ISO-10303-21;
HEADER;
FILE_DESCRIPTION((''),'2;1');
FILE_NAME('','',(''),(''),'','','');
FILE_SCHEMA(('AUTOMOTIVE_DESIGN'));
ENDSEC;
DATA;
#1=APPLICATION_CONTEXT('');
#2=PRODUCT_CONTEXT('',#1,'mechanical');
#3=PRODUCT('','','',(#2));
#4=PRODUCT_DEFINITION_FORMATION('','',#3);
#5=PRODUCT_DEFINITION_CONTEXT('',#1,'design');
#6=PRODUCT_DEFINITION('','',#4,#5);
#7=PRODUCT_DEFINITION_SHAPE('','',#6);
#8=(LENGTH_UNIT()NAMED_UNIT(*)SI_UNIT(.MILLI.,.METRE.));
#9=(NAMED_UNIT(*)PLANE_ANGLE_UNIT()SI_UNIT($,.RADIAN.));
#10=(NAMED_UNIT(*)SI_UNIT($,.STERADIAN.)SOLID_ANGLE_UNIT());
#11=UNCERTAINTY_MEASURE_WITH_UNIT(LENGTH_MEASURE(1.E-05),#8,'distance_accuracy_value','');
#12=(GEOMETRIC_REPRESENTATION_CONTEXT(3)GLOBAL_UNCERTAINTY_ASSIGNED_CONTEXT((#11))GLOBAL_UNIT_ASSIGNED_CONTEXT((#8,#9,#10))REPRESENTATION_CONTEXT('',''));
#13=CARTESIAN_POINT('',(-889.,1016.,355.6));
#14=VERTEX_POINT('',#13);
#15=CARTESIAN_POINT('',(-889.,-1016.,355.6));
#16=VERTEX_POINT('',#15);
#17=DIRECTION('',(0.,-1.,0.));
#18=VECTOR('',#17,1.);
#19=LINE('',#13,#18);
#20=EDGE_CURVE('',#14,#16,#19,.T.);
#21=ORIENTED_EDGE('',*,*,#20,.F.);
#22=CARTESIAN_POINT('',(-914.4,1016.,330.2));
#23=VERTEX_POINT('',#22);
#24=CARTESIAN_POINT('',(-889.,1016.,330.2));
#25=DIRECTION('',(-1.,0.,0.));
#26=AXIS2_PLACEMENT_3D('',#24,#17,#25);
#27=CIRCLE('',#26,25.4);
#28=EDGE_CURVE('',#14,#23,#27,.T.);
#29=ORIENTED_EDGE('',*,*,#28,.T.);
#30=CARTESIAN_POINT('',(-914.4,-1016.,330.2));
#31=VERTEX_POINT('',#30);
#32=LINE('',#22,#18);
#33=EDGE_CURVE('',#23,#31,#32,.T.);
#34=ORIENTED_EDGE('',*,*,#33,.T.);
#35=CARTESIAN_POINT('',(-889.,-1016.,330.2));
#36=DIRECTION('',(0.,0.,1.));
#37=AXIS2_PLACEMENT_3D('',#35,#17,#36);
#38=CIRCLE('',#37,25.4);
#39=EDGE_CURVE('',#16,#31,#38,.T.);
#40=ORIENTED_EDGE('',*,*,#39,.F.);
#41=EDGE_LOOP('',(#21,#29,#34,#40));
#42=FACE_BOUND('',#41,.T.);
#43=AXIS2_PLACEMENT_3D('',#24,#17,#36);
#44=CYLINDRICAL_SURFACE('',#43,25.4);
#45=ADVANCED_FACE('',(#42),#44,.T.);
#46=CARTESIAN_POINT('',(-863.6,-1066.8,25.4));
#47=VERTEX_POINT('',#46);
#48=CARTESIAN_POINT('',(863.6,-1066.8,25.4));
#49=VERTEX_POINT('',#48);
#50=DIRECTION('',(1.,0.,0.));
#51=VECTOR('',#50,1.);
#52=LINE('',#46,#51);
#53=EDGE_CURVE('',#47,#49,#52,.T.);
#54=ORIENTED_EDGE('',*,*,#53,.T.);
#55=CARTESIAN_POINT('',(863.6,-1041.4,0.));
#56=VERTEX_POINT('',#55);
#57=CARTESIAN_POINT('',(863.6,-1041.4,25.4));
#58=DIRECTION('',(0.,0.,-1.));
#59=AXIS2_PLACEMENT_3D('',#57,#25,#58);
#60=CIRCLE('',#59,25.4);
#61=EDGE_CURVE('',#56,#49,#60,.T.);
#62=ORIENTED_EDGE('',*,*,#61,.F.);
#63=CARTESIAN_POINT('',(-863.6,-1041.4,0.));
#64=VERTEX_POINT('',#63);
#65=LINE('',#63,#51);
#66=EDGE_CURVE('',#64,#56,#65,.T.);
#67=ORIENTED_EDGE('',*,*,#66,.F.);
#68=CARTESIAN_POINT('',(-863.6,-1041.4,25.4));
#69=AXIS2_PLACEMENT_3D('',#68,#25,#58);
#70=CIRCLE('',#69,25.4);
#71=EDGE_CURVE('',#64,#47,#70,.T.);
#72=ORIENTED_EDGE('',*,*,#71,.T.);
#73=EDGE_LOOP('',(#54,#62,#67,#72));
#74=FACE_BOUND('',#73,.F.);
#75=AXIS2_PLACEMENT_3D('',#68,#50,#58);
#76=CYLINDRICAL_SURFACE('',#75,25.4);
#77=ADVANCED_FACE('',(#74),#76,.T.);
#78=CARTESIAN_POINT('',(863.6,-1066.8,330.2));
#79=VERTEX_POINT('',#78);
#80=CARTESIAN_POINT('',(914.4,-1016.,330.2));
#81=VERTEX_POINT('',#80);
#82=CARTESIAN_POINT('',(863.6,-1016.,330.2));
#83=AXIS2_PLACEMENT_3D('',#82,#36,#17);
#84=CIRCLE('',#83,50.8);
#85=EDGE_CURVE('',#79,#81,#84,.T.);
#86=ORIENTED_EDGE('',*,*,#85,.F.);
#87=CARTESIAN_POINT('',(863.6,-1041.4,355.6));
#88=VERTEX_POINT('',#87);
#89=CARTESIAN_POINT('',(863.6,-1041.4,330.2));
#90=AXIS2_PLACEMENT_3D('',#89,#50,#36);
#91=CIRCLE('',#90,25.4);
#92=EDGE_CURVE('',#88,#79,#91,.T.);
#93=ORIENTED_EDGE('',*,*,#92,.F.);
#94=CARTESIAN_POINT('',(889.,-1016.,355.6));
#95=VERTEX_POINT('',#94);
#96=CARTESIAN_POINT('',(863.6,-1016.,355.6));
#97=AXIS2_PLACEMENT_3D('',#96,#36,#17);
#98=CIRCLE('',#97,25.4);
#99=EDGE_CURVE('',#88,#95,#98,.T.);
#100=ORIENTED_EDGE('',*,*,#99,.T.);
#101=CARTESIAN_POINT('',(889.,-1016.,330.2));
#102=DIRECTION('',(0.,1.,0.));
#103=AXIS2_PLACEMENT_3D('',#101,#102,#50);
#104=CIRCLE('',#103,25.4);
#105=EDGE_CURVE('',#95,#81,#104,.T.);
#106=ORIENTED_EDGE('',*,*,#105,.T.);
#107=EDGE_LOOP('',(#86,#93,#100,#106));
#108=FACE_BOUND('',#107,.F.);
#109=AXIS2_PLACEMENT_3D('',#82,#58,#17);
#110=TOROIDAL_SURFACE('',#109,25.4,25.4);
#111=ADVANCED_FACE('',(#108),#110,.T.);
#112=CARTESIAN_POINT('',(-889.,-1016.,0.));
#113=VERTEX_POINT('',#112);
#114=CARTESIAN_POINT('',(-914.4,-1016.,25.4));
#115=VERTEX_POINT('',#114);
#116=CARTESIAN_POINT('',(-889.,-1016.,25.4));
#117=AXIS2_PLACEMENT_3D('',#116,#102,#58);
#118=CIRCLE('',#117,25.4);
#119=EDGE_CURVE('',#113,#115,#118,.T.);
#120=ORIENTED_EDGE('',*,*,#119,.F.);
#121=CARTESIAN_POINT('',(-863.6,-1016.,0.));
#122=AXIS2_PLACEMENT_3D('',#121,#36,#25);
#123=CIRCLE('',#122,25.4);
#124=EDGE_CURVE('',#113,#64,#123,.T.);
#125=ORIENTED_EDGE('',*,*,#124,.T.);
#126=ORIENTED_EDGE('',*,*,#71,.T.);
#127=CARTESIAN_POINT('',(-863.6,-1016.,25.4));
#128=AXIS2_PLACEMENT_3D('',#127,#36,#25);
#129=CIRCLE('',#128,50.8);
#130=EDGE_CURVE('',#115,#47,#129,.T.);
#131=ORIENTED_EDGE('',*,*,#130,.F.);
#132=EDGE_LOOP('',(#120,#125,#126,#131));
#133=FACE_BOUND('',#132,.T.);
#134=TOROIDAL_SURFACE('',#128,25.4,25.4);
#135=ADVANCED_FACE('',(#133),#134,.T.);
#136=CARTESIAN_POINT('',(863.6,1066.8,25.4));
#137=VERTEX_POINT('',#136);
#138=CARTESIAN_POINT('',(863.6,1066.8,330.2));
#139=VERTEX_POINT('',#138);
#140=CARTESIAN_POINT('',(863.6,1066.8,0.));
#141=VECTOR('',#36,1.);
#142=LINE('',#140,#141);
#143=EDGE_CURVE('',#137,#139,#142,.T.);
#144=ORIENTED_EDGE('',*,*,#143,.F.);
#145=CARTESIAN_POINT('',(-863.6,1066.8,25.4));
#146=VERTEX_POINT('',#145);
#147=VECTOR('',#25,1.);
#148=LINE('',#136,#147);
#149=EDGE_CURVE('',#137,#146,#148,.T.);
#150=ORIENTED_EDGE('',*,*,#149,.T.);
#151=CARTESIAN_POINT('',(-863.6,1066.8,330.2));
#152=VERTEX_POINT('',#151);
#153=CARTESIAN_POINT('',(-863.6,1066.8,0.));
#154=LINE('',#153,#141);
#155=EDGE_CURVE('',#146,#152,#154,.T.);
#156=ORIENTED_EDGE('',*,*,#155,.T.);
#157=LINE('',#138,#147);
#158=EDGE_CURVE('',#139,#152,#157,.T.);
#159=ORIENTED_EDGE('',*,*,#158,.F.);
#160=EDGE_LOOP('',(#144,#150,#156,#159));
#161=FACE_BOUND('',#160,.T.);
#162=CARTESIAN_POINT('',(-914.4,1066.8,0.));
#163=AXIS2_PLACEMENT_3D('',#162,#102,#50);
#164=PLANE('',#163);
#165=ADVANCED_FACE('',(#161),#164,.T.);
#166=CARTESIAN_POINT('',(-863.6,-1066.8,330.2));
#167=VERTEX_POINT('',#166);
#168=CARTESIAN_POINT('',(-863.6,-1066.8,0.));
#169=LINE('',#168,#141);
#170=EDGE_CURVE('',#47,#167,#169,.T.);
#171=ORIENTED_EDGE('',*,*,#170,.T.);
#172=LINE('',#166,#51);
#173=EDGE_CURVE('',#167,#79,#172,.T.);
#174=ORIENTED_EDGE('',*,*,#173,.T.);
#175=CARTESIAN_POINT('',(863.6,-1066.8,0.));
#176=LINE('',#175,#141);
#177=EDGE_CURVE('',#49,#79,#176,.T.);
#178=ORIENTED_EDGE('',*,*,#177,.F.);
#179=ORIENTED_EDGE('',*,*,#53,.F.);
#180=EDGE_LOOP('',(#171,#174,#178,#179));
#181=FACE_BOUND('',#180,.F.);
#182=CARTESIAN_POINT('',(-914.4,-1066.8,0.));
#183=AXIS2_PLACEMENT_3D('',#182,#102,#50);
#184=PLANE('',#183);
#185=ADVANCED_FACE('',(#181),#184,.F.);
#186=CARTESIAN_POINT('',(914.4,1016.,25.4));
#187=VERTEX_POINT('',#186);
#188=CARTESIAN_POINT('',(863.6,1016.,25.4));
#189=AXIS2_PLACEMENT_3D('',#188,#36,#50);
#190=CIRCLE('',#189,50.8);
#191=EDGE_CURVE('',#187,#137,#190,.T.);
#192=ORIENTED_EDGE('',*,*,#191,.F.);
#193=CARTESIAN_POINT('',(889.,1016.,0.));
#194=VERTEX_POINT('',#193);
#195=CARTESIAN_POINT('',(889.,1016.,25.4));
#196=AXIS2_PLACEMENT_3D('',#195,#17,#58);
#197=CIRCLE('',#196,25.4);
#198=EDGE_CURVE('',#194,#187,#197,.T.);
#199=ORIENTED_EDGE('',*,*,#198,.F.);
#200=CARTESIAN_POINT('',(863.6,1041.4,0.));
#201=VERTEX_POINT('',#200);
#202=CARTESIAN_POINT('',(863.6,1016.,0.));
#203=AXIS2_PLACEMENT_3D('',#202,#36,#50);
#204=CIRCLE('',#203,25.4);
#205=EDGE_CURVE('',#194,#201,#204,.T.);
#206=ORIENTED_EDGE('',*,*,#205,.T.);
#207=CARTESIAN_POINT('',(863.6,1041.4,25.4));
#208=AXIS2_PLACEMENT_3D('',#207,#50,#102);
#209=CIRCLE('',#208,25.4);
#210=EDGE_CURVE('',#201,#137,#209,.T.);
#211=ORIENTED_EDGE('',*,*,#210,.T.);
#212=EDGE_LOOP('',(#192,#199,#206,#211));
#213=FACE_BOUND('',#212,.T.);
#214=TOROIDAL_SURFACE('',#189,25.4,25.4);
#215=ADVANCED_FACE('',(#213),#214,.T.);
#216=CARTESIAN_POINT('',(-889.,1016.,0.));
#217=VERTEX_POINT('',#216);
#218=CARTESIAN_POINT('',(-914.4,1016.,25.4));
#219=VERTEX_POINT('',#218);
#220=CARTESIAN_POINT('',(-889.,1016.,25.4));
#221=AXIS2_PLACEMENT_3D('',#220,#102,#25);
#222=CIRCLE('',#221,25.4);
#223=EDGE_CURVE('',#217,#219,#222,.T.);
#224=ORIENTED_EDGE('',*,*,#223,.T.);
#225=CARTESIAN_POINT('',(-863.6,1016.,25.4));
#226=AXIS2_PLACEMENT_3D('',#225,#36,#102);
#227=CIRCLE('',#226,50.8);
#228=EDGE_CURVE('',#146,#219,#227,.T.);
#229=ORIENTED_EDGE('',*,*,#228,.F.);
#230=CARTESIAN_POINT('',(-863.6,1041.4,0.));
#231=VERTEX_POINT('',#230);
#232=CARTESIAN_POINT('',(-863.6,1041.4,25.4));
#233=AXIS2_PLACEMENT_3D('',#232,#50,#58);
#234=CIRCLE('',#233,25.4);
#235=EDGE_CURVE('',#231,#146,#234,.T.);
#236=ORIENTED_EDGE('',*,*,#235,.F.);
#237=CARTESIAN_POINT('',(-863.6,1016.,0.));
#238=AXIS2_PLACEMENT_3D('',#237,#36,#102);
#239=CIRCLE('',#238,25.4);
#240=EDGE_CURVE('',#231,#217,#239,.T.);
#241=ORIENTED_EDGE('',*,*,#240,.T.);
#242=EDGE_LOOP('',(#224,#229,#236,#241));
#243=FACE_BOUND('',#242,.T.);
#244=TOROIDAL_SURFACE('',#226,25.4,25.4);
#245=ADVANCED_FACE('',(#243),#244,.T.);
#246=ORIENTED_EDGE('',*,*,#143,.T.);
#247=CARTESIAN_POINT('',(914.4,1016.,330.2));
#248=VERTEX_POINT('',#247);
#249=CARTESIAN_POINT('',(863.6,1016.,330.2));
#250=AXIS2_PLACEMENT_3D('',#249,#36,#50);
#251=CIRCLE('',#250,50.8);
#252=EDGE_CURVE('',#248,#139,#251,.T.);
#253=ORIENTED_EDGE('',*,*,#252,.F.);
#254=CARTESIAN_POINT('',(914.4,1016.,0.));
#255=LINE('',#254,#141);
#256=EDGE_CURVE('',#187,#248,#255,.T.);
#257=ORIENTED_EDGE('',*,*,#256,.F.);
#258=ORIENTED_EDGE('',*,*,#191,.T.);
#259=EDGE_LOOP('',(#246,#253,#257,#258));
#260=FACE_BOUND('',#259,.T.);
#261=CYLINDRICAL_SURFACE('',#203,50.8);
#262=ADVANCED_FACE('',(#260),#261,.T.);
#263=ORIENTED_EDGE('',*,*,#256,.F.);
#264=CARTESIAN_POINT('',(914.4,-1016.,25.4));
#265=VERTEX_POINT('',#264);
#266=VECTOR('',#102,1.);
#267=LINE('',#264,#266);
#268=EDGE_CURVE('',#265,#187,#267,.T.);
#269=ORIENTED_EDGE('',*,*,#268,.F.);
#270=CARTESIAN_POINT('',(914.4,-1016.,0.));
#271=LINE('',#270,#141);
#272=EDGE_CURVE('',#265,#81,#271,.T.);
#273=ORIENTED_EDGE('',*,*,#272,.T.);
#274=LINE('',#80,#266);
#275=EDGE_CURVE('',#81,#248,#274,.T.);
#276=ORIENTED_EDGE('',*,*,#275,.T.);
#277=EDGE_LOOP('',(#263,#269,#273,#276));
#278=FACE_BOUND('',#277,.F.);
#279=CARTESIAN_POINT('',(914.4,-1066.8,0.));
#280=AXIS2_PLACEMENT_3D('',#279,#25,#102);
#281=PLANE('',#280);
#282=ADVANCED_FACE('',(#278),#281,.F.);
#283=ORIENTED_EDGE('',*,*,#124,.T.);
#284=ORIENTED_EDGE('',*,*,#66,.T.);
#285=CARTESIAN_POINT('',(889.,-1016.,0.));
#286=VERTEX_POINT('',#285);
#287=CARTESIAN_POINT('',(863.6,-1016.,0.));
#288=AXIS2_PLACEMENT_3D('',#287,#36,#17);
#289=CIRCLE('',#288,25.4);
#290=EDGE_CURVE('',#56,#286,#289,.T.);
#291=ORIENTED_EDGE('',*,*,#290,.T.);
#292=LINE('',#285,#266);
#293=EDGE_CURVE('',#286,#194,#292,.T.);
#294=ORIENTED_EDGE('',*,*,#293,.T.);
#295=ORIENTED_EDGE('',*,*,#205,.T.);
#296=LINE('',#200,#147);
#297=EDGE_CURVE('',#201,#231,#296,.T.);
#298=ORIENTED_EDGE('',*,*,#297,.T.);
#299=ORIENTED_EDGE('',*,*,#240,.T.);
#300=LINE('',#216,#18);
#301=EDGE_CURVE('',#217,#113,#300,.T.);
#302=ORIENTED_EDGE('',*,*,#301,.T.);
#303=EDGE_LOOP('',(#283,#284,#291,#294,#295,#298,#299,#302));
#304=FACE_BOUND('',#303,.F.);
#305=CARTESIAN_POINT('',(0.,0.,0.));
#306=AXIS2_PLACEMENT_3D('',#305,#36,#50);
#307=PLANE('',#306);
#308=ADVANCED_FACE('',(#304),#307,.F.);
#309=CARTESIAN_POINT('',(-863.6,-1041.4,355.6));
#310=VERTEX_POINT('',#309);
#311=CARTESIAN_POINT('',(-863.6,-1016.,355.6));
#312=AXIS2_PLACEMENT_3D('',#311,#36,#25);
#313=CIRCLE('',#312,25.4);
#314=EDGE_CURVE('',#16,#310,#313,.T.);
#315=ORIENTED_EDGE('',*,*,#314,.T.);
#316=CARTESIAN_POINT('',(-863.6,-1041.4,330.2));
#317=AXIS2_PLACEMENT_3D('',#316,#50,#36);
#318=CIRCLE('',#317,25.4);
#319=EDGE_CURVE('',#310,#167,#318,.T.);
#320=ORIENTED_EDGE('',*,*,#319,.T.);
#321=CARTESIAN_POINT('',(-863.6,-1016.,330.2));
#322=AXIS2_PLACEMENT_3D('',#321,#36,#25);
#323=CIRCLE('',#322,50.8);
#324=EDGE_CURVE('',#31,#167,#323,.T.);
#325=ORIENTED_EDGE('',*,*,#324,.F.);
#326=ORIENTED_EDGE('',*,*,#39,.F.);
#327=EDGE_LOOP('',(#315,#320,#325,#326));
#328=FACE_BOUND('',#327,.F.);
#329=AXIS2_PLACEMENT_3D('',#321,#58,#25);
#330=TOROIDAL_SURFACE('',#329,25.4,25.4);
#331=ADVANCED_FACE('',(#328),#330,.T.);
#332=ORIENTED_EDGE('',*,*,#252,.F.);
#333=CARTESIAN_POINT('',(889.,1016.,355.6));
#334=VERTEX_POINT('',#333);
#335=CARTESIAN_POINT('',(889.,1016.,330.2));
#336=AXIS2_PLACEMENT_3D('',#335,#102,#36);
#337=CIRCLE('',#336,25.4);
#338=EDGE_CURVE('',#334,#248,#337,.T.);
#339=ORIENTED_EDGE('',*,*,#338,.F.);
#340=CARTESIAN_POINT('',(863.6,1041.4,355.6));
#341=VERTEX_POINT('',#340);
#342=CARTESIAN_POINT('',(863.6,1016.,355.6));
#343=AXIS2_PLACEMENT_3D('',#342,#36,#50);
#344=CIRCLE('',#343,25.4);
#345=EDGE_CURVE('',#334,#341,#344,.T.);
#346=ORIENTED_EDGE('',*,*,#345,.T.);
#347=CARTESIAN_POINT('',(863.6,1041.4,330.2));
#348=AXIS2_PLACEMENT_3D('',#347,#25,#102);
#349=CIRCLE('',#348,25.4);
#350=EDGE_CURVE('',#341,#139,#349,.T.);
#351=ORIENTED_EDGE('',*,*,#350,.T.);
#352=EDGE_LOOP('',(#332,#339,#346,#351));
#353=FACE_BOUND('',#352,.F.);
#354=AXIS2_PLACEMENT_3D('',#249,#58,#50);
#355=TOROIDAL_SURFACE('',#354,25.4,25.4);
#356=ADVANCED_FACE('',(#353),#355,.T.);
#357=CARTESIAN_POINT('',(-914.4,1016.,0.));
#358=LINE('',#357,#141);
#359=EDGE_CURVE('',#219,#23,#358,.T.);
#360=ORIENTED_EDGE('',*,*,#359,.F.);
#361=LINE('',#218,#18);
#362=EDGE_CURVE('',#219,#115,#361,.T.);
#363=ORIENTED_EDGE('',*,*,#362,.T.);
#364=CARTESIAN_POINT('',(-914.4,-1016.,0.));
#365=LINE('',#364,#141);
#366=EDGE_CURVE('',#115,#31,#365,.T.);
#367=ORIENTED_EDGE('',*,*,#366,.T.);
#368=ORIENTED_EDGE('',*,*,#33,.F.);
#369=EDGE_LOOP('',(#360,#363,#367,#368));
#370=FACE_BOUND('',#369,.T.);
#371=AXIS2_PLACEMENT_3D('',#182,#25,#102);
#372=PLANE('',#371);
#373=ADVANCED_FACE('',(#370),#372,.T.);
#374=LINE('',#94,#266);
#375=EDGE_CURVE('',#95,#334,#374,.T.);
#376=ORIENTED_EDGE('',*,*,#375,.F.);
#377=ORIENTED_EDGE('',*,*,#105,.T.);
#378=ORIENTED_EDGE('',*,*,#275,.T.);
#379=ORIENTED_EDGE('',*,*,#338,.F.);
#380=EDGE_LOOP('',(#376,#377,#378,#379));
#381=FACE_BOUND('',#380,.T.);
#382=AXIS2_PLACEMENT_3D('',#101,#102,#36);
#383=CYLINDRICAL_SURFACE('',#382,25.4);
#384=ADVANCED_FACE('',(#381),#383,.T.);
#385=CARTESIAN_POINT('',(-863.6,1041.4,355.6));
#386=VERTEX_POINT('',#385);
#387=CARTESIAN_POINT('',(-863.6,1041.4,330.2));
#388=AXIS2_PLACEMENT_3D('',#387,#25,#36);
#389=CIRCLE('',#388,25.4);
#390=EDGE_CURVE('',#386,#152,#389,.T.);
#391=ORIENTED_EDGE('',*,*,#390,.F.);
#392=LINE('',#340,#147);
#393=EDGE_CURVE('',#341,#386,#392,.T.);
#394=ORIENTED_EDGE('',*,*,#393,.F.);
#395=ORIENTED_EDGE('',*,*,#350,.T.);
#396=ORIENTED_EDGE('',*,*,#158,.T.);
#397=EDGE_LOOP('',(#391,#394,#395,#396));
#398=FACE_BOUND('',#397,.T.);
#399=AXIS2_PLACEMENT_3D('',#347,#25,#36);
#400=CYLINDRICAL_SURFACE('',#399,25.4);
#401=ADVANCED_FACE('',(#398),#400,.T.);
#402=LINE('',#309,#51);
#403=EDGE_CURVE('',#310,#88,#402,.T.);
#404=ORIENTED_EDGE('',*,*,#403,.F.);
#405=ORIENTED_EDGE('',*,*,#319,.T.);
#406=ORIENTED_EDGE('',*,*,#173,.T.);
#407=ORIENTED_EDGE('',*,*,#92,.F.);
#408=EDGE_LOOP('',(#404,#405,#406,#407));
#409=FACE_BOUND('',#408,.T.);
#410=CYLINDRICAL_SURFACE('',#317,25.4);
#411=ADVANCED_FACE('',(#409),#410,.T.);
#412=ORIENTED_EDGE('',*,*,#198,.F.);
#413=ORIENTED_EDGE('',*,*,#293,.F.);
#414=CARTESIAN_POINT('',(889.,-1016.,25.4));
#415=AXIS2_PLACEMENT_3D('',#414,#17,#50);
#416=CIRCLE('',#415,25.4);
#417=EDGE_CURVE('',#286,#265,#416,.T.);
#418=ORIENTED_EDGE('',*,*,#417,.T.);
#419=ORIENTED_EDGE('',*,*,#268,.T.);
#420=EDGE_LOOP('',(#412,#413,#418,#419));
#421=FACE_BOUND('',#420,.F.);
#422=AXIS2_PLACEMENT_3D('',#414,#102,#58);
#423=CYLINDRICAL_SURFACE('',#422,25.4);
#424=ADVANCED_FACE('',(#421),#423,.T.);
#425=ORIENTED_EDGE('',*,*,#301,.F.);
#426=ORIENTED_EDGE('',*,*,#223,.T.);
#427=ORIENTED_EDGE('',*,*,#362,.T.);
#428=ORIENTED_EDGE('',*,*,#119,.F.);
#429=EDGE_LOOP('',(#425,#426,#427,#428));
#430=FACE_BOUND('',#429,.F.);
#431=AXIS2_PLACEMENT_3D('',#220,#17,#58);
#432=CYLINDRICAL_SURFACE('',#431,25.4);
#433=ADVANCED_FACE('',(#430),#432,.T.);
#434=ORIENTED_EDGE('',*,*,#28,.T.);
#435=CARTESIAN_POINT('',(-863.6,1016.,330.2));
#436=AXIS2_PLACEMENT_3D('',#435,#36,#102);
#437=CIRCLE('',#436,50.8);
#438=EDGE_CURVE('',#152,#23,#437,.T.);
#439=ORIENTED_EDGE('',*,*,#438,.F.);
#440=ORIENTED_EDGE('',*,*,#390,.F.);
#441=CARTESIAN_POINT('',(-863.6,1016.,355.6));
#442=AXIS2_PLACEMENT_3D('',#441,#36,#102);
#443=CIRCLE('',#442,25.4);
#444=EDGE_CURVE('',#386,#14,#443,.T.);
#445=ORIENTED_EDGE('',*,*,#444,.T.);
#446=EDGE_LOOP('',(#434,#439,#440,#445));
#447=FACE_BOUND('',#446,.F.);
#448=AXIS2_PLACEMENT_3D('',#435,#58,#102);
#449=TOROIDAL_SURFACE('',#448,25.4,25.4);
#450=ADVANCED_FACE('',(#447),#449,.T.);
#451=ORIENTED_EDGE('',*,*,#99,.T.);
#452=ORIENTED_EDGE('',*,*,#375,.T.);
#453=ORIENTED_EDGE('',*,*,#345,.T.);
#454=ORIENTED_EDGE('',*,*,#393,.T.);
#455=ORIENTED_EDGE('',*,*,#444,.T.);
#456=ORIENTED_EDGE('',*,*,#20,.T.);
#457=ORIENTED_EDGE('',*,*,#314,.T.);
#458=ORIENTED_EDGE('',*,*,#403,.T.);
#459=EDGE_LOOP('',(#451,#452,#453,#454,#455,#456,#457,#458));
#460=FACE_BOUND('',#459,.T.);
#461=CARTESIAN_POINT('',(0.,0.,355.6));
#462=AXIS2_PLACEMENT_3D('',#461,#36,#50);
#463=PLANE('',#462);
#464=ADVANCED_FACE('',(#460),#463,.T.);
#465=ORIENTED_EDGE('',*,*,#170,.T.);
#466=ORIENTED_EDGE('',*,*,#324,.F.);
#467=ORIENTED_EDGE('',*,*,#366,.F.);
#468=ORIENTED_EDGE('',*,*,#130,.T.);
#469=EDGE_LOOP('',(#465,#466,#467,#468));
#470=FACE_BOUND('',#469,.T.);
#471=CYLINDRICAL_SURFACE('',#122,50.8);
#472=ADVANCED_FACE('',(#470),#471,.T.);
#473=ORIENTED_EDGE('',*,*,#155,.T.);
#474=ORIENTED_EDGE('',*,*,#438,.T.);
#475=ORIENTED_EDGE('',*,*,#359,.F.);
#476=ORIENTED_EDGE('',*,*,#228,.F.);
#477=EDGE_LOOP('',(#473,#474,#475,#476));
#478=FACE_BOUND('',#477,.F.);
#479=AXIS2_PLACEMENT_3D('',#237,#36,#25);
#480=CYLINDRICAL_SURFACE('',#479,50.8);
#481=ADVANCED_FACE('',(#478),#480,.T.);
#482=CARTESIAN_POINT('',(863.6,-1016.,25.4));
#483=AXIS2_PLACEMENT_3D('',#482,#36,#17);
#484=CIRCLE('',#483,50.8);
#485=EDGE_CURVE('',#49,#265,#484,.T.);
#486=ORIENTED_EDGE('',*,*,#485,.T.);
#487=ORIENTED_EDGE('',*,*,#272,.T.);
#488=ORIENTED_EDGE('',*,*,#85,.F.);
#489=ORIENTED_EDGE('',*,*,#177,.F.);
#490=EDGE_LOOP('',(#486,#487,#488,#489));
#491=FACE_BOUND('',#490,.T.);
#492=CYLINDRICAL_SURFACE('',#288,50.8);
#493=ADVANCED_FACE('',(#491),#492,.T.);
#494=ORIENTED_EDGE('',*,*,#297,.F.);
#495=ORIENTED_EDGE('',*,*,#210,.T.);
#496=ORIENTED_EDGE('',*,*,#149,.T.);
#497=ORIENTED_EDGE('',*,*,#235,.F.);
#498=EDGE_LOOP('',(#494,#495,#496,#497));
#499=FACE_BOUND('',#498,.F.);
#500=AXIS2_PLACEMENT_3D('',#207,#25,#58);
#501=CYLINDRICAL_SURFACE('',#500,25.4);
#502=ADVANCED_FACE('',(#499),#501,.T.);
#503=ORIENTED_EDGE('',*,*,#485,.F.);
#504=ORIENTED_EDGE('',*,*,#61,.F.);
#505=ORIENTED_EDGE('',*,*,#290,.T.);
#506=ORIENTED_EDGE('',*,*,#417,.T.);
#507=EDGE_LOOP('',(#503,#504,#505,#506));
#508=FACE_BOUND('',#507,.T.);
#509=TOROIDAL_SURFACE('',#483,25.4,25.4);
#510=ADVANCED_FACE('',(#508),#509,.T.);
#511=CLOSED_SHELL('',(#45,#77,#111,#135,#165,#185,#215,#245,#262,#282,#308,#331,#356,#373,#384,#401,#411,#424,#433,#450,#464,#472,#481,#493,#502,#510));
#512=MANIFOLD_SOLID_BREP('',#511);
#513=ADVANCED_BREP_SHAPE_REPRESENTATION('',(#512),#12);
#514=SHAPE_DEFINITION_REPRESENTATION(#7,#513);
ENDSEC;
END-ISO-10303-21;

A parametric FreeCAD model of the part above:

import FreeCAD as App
import Part
import Sketcher

V = App.Vector
Q = App.Units.Quantity


def edges_at(feature, points):
    """Names of the edges that pass closest to the given points."""
    edges = feature.Shape.Edges
    near = lambda p: min(range(len(edges)), key=lambda i: edges[i].distToShape(Part.Vertex(*p))[0])
    return sorted({f"Edge{near(p) + 1}" for p in points})

doc = App.newDocument("Part")
body = doc.addObject("PartDesign::Body", "Body")

# Sketch on XY plane
sketch1 = body.newObject("Sketcher::SketchObject", "Sketch")
sketch1.AttachmentSupport = (doc.getObject("XY_Plane"), [""])
sketch1.MapMode = "FlatFace"
sketch1.addGeometry([
    Part.LineSegment(V(-914, 1067, 0), V(-914, -1067, 0)),
    Part.LineSegment(V(-914, -1067, 0), V(914, -1067, 0)),
    Part.LineSegment(V(914, -1067, 0), V(914, 1067, 0)),
    Part.LineSegment(V(914, 1067, 0), V(-914, 1067, 0)),
], False)
sketch1.addConstraint([
    Sketcher.Constraint("Coincident", 0, 2, 1, 1),
    Sketcher.Constraint("Coincident", 1, 2, 2, 1),
    Sketcher.Constraint("Coincident", 2, 2, 3, 1),
    Sketcher.Constraint("Coincident", 3, 2, 0, 1),
    Sketcher.Constraint("Vertical", 0),
    Sketcher.Constraint("Horizontal", 1),
    Sketcher.Constraint("Vertical", 2),
    Sketcher.Constraint("Horizontal", 3),
    Sketcher.Constraint("Symmetric", 0, 2, 2, 2, -1, 1),
    Sketcher.Constraint("DistanceX", 1, 1, 1, 2, Q("72 in")),
    Sketcher.Constraint("DistanceY", 0, 2, 0, 1, Q("84 in")),
])
pad1 = body.newObject("PartDesign::Pad", "Pad")
pad1.Profile = sketch1
pad1.Length = Q("14 in")
doc.recompute()

fillet = body.newObject("PartDesign::Fillet", "Fillet")
fillet.Base = (pad1, edges_at(pad1, [
    (-914.4, 1066.8, 177.8),
    (-914.4, -1066.8, 177.8),
    (914.4, 1066.8, 177.8),
    (914.4, -1066.8, 177.8),
]))
fillet.Radius = Q("2 in")
doc.recompute()

fillet2 = body.newObject("PartDesign::Fillet", "Fillet001")
fillet2.Base = (fillet, edges_at(fillet, [(0, -1066.8, 355.6), (0, -1066.8, 0)]))
fillet2.Radius = Q("1 in")

doc.recompute()
